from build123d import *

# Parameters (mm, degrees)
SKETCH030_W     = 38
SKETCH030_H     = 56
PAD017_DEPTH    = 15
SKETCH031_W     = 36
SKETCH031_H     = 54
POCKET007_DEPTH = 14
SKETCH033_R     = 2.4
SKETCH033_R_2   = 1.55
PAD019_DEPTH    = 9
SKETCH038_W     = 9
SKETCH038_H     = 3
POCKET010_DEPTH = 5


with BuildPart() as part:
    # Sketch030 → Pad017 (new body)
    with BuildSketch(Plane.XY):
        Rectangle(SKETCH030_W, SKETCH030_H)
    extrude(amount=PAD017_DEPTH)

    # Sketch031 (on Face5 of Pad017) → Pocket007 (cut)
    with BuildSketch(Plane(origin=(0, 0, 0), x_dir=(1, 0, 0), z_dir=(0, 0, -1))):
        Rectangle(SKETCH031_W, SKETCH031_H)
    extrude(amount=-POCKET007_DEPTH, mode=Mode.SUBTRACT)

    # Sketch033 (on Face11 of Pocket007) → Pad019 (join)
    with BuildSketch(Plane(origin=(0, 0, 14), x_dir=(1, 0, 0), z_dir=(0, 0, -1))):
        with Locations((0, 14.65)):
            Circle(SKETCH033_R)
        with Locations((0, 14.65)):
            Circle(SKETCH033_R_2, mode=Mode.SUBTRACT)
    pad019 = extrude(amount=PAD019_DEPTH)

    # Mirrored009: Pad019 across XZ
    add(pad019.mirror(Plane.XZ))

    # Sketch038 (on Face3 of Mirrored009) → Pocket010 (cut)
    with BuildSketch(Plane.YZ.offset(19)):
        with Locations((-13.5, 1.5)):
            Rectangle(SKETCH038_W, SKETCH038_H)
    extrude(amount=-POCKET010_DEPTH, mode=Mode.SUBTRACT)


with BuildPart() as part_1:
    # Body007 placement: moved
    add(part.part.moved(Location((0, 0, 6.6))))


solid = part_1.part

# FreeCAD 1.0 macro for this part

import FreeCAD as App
import Part
import Sketcher


def add_polygon(sketch, points):
    """Adds a closed chain of lines whose ends are joined by coincident constraints."""
    first, n = sketch.GeometryCount, len(points)
    for a, b in zip(points, points[1:] + points[:1]):
        sketch.addGeometry(Part.LineSegment(App.Vector(*a, 0), App.Vector(*b, 0)), False)
    for i in range(n):
        sketch.addConstraint(Sketcher.Constraint("Coincident", first + i, 2, first + (i + 1) % n, 1))

doc = App.newDocument("Part")
params = doc.addObject("Spreadsheet::Sheet", "Params")
for row, (alias, value) in enumerate([
    ("sketch1_width", "38 mm"),
    ("sketch1_height", "56 mm"),
    ("pad1_length", "15 mm"),
    ("sketch2_width", "36 mm"),
    ("sketch2_height", "54 mm"),
    ("pocket1_length", "14 mm"),
    ("sketch3_diameter", "4.8 mm"),
    ("sketch3_diameter2", "3.1 mm"),
    ("pad2_length", "9 mm"),
    ("sketch4_width", "9 mm"),
    ("sketch4_height", "3 mm"),
    ("pocket2_length", "5 mm"),
], start=1):
    params.set(f"A{row}", alias)
    params.set(f"B{row}", "=" + value)
    params.setAlias(f"B{row}", alias)

body = doc.addObject("PartDesign::Body", "Body")

sketch1 = body.newObject("Sketcher::SketchObject", "Sketch")
sketch1.AttachmentSupport = (doc.getObject("XY_Plane"), [""])
sketch1.MapMode = "FlatFace"
add_polygon(sketch1, [(-19, 28), (-19, -28), (19, -28), (19, 28)])
sketch1.addConstraint(Sketcher.Constraint("Vertical", 0))
sketch1.addConstraint(Sketcher.Constraint("Horizontal", 1))
sketch1.addConstraint(Sketcher.Constraint("Vertical", 2))
sketch1.addConstraint(Sketcher.Constraint("Horizontal", 3))
sketch1.addConstraint(Sketcher.Constraint("Symmetric", 0, 2, 2, 2, -1, 1))
sketch1.addConstraint(Sketcher.Constraint("DistanceX", 1, 1, 1, 2, 38.0))
sketch1.addConstraint(Sketcher.Constraint("DistanceY", 0, 2, 0, 1, 56.0))
sketch1.setExpression("Constraints[9]", "Params.sketch1_width")
sketch1.setExpression("Constraints[10]", "Params.sketch1_height")
pad1 = body.newObject("PartDesign::Pad", "Pad")
pad1.Profile = sketch1
pad1.setExpression("Length", "Params.pad1_length")

sketch2 = body.newObject("Sketcher::SketchObject", "Sketch001")
sketch2.AttachmentSupport = (doc.getObject("XY_Plane"), [""])
sketch2.MapMode = "FlatFace"
add_polygon(sketch2, [(-18, -27), (-18, 27), (18, 27), (18, -27)])
sketch2.addConstraint(Sketcher.Constraint("Vertical", 0))
sketch2.addConstraint(Sketcher.Constraint("Horizontal", 1))
sketch2.addConstraint(Sketcher.Constraint("Vertical", 2))
sketch2.addConstraint(Sketcher.Constraint("Horizontal", 3))
sketch2.addConstraint(Sketcher.Constraint("Symmetric", 0, 2, 2, 2, -1, 1))
sketch2.addConstraint(Sketcher.Constraint("DistanceX", 1, 1, 1, 2, 36.0))
sketch2.addConstraint(Sketcher.Constraint("DistanceY", 0, 1, 0, 2, 54.0))
sketch2.setExpression("Constraints[9]", "Params.sketch2_width")
sketch2.setExpression("Constraints[10]", "Params.sketch2_height")
pocket1 = body.newObject("PartDesign::Pocket", "Pocket")
pocket1.Profile = sketch2
pocket1.setExpression("Length", "Params.pocket1_length")
pocket1.Reversed = True

sketch3 = body.newObject("Sketcher::SketchObject", "Sketch002")
sketch3.AttachmentSupport = (doc.getObject("XY_Plane"), [""])
sketch3.MapMode = "FlatFace"
sketch3.AttachmentOffset = App.Placement(App.Vector(0, 0, 14), App.Rotation())
sketch3.addGeometry(Part.Circle(App.Vector(0, -14.65, 0), App.Vector(0, 0, 1), 2.4), False)
sketch3.addGeometry(Part.Circle(App.Vector(0, -14.65, 0), App.Vector(0, 0, 1), 1.55), False)
sketch3.addConstraint(Sketcher.Constraint("Coincident", 1, 3, 0, 3))
sketch3.addConstraint(Sketcher.Constraint("PointOnObject", 0, 3, -2))
sketch3.addConstraint(Sketcher.Constraint("Diameter", 0, 4.8))
sketch3.addConstraint(Sketcher.Constraint("Diameter", 1, 3.1))
sketch3.addConstraint(Sketcher.Constraint("DistanceY", 0, 3, -1, 1, 14.65))
sketch3.setExpression("Constraints[2]", "Params.sketch3_diameter")
sketch3.setExpression("Constraints[3]", "Params.sketch3_diameter2")
pad2 = body.newObject("PartDesign::Pad", "Pad001")
pad2.Profile = sketch3
pad2.setExpression("Length", "Params.pad2_length")
pad2.Reversed = True
doc.recompute()

mirrored = body.newObject("PartDesign::Mirrored", "Mirrored")
mirrored.Originals = [pad2]
mirrored.MirrorPlane = (doc.getObject("XZ_Plane"), [""])
body.Tip = mirrored

sketch4 = body.newObject("Sketcher::SketchObject", "Sketch003")
sketch4.AttachmentSupport = (doc.getObject("YZ_Plane"), [""])
sketch4.MapMode = "FlatFace"
sketch4.AttachmentOffset = App.Placement(App.Vector(0, 0, 19), App.Rotation())
add_polygon(sketch4, [(-18, 3), (-18, 0), (-9, 0), (-9, 3)])
sketch4.addConstraint(Sketcher.Constraint("Vertical", 0))
sketch4.addConstraint(Sketcher.Constraint("Horizontal", 1))
sketch4.addConstraint(Sketcher.Constraint("Vertical", 2))
sketch4.addConstraint(Sketcher.Constraint("Horizontal", 3))
sketch4.addConstraint(Sketcher.Constraint("PointOnObject", 0, 2, -1))
sketch4.addConstraint(Sketcher.Constraint("DistanceX", 1, 1, 1, 2, 9.0))
sketch4.addConstraint(Sketcher.Constraint("DistanceY", 0, 2, 0, 1, 3.0))
sketch4.addConstraint(Sketcher.Constraint("DistanceX", 0, 2, -1, 1, 18.0))
sketch4.setExpression("Constraints[9]", "Params.sketch4_width")
sketch4.setExpression("Constraints[10]", "Params.sketch4_height")
pocket2 = body.newObject("PartDesign::Pocket", "Pocket001")
pocket2.Profile = sketch4
pocket2.setExpression("Length", "Params.pocket2_length")
body2 = doc.addObject("PartDesign::Body", "Body001")
doc.recompute()

body.Placement = App.Placement(App.Vector(0, 0, 6.6), App.Rotation(App.Vector(0, 0, 1), 0))
boolean = body2.newObject("PartDesign::Boolean", "Boolean")
boolean.Type = "Fuse"
boolean.addObjects([body])

doc.recompute()
